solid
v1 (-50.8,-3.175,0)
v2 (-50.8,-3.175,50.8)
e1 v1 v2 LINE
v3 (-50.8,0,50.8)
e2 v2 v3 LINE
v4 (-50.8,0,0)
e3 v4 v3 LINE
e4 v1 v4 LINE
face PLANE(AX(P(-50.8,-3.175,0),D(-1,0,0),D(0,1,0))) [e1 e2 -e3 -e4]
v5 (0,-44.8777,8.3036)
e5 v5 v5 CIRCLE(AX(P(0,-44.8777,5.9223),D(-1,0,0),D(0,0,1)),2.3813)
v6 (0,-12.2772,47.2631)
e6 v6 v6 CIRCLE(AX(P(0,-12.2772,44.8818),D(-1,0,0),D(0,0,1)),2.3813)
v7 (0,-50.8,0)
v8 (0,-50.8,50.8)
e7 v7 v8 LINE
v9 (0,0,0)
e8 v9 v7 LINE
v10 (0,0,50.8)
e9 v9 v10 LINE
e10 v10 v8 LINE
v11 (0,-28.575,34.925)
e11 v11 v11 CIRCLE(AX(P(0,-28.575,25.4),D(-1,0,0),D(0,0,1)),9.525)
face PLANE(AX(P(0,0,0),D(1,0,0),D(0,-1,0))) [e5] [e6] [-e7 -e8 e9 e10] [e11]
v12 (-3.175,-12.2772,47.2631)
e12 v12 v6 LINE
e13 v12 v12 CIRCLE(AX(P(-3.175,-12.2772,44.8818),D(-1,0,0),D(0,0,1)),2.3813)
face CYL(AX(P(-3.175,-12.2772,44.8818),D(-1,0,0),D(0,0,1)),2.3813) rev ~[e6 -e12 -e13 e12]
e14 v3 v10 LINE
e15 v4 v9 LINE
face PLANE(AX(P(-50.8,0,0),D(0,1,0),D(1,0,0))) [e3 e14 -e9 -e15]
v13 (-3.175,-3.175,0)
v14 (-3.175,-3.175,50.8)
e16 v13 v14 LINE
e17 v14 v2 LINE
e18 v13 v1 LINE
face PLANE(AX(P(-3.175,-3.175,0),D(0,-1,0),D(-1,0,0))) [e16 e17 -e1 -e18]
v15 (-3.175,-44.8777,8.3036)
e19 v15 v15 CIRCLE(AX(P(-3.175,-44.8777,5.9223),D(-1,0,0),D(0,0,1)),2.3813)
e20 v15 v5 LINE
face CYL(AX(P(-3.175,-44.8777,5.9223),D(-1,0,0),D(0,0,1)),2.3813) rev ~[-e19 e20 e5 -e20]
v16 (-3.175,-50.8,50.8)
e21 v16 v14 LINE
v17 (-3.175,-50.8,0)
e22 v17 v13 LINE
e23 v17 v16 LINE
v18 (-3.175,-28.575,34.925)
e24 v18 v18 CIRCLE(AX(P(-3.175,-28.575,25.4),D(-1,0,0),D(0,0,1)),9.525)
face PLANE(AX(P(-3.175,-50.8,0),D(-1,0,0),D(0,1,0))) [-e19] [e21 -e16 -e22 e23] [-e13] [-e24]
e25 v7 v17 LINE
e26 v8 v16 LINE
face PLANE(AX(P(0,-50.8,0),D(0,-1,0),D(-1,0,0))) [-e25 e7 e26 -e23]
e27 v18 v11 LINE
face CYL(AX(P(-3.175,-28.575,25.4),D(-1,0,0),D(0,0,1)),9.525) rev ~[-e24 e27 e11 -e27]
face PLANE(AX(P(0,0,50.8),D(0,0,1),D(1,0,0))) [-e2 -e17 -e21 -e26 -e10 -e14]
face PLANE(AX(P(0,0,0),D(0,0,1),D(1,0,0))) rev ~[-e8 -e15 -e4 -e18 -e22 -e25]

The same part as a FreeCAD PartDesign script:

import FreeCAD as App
import Part
import Sketcher
Q = App.Units.Quantity

doc = App.newDocument("Part")
params = doc.addObject("Spreadsheet::Sheet", "Params")
for row, (alias, value) in enumerate([
    ("sketch1_width", "2 in"),
    ("sketch1_width2", "1.875 in"),
    ("pad1_length", "2 in"),
    ("sketch2_diameter", "0.75 in"),
    ("sketch2_diameter2", "0.1875 in"),
    ("pocket1_length", "0.125 in"),
], start=1):
    params.set(f"A{row}", alias)
    params.set(f"B{row}", "=" + value)
    params.setAlias(f"B{row}", alias)

body = doc.addObject("PartDesign::Body", "Body")

sketch1 = body.newObject("Sketcher::SketchObject", "Sketch")
sketch1.AttachmentSupport = (doc.getObject("XY_Plane"), [""])
sketch1.MapMode = "FlatFace"
sketch1.addGeometry(Part.LineSegment(App.Vector(0, -50.8, 0), App.Vector(0, 0, 0)), False)
sketch1.addGeometry(Part.LineSegment(App.Vector(0, 0, 0), App.Vector(-50.8, 0, 0)), False)
sketch1.addGeometry(Part.LineSegment(App.Vector(-50.8, 0, 0), App.Vector(-50.8, -3.175, 0)), False)
sketch1.addGeometry(Part.LineSegment(App.Vector(-50.8, -3.175, 0), App.Vector(-3.175, -3.175, 0)), False)
sketch1.addGeometry(Part.LineSegment(App.Vector(-3.175, -3.175, 0), App.Vector(-3.175, -50.8, 0)), False)
sketch1.addGeometry(Part.LineSegment(App.Vector(-3.175, -50.8, 0), App.Vector(0, -50.8, 0)), False)
sketch1.addConstraint(Sketcher.Constraint("Coincident", 0, 2, 1, 1))
sketch1.addConstraint(Sketcher.Constraint("Coincident", 1, 2, 2, 1))
sketch1.addConstraint(Sketcher.Constraint("Coincident", 2, 2, 3, 1))
sketch1.addConstraint(Sketcher.Constraint("Coincident", 3, 2, 4, 1))
sketch1.addConstraint(Sketcher.Constraint("Coincident", 4, 2, 5, 1))
sketch1.addConstraint(Sketcher.Constraint("Coincident", 5, 2, 0, 1))
sketch1.addConstraint(Sketcher.Constraint("Vertical", 0))
sketch1.addConstraint(Sketcher.Constraint("Horizontal", 1))
sketch1.addConstraint(Sketcher.Constraint("Vertical", 2))
sketch1.addConstraint(Sketcher.Constraint("Horizontal", 3))
sketch1.addConstraint(Sketcher.Constraint("Vertical", 4))
sketch1.addConstraint(Sketcher.Constraint("Horizontal", 5))
sketch1.addConstraint(Sketcher.Constraint("Coincident", 0, 2, -1, 1))
sketch1.addConstraint(Sketcher.Constraint("Equal", 1, 0))
sketch1.addConstraint(Sketcher.Constraint("Equal", 5, 2))
sketch1.addConstraint(Sketcher.Constraint("DistanceX", 1, 2, 1, 1, Q("2 in")))
sketch1.addConstraint(Sketcher.Constraint("DistanceX", 3, 1, 3, 2, Q("1.875 in")))
sketch1.setExpression("Constraints[15]", "Params.sketch1_width")
sketch1.setExpression("Constraints[16]", "Params.sketch1_width2")
pad1 = body.newObject("PartDesign::Pad", "Pad")
pad1.Profile = sketch1
pad1.setExpression("Length", "Params.pad1_length")

sketch2 = body.newObject("Sketcher::SketchObject", "Sketch001")
sketch2.AttachmentSupport = (doc.getObject("YZ_Plane"), [""])
sketch2.MapMode = "FlatFace"
sketch2.AttachmentOffset = App.Placement(App.Vector(0, 0, -0.125 * 25.4), App.Rotation())
sketch2.addGeometry(Part.Circle(App.Vector(-28.575, 25.4, 0), App.Vector(0, 0, 1), 9.525), False)
sketch2.addGeometry(Part.Circle(App.Vector(-12.2772, 44.8818, 0), App.Vector(0, 0, 1), 2.3813), False)
sketch2.addGeometry(Part.Circle(App.Vector(-44.8777, 5.9223, 0), App.Vector(0, 0, 1), 2.3813), False)
sketch2.addConstraint(Sketcher.Constraint("Equal", 1, 2))
sketch2.addConstraint(Sketcher.Constraint("Diameter", 0, Q("0.75 in")))
sketch2.addConstraint(Sketcher.Constraint("Diameter", 1, Q("0.1875 in")))
sketch2.addConstraint(Sketcher.Constraint("DistanceY", -1, 1, 0, 3, Q("1 in")))
sketch2.addConstraint(Sketcher.Constraint("DistanceX", 0, 3, -1, 1, Q("1.125 in")))
sketch2.addConstraint(Sketcher.Constraint("DistanceY", -1, 1, 1, 3, Q("1.767 in")))
sketch2.addConstraint(Sketcher.Constraint("DistanceX", 1, 3, -1, 1, Q("12.2772 mm")))
sketch2.addConstraint(Sketcher.Constraint("DistanceX", 2, 3, -1, 1, Q("44.8777 mm")))
sketch2.addConstraint(Sketcher.Constraint("DistanceY", -1, 1, 2, 3, Q("5.9223 mm")))
sketch2.setExpression("Constraints[1]", "Params.sketch2_diameter")
sketch2.setExpression("Constraints[2]", "Params.sketch2_diameter2")
pocket1 = body.newObject("PartDesign::Pocket", "Pocket")
pocket1.Profile = sketch2
pocket1.setExpression("Length", "Params.pocket1_length")
pocket1.Reversed = True

doc.recompute()
